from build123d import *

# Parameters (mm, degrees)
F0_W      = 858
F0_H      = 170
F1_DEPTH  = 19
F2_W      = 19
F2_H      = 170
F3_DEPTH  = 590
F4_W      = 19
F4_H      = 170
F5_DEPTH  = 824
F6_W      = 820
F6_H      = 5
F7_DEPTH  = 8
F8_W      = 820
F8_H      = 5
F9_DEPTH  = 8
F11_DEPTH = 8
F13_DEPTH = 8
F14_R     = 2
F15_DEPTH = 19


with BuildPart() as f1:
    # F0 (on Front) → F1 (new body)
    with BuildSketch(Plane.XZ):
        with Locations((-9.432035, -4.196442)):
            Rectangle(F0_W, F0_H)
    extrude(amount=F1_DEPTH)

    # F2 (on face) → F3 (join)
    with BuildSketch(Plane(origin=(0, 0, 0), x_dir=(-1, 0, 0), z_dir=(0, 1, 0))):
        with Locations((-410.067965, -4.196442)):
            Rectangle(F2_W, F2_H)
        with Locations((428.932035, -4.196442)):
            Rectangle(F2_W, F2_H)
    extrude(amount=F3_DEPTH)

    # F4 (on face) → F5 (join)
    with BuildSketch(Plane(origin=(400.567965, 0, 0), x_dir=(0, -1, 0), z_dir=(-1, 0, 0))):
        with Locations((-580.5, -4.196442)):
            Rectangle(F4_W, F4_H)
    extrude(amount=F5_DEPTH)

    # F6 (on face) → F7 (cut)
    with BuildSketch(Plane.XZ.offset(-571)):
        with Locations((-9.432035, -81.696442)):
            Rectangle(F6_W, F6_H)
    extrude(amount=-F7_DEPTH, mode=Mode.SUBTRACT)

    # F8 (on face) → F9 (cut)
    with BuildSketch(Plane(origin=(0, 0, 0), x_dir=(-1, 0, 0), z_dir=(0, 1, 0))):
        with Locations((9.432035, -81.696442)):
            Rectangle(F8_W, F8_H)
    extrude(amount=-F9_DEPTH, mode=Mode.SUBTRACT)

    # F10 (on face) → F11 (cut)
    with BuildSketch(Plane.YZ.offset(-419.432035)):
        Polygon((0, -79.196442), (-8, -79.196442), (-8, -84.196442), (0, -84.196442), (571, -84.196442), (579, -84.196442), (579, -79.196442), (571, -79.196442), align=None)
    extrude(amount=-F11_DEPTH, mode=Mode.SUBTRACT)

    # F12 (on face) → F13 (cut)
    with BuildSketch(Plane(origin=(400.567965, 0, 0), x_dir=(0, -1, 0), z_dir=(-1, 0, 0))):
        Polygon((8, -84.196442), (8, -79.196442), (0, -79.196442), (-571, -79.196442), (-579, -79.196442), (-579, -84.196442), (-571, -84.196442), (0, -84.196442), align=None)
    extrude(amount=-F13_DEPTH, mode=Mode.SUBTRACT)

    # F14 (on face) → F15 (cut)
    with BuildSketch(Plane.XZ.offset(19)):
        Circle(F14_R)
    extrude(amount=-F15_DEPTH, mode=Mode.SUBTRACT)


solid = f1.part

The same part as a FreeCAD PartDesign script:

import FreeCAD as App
import Part
import Sketcher

V = App.Vector


def add_polygon(sketch, points):
    """Adds a closed chain of lines whose ends are joined by coincident constraints."""
    first, n = sketch.GeometryCount, len(points)
    for a, b in zip(points, points[1:] + points[:1]):
        sketch.addGeometry(Part.LineSegment(App.Vector(*a, 0), App.Vector(*b, 0)), False)
    for i in range(n):
        sketch.addConstraint(Sketcher.Constraint("Coincident", first + i, 2, first + (i + 1) % n, 1))

doc = App.newDocument("Part")
body = doc.addObject("PartDesign::Body", "Body")

# Sketch on XZ plane
sketch1 = body.newObject("Sketcher::SketchObject", "Sketch")
sketch1.AttachmentSupport = (doc.getObject("XZ_Plane"), [""])
sketch1.MapMode = "FlatFace"
add_polygon(sketch1, [(-438, 81), (-438, -89), (420, -89), (420, 81)])  # lines 0-3
sketch1.addConstraint([
    Sketcher.Constraint("Vertical", 0),
    Sketcher.Constraint("Horizontal", 1),
    Sketcher.Constraint("Vertical", 2),
    Sketcher.Constraint("Horizontal", 3),
    Sketcher.Constraint("DistanceX", 1, 1, 1, 2, 858.0),
    Sketcher.Constraint("DistanceY", 0, 2, 0, 1, 170.0),
    Sketcher.Constraint("DistanceX", 0, 2, -1, 1, 438.432035),
    Sketcher.Constraint("DistanceY", 0, 2, -1, 1, 89.196442),
])
pad1 = body.newObject("PartDesign::Pad", "Pad")
pad1.Profile = sketch1
pad1.Length = 19

# Sketch on XZ plane
sketch2 = body.newObject("Sketcher::SketchObject", "Sketch001")
sketch2.AttachmentSupport = (doc.getObject("XZ_Plane"), [""])
sketch2.MapMode = "FlatFace"
add_polygon(sketch2, [(420, 81), (420, -89), (401, -89), (401, 81)])  # lines 0-3
add_polygon(sketch2, [(-419, 81), (-419, -89), (-438, -89), (-438, 81)])  # lines 4-7
sketch2.addConstraint([
    Sketcher.Constraint("Vertical", 0),
    Sketcher.Constraint("Horizontal", 1),
    Sketcher.Constraint("Vertical", 2),
    Sketcher.Constraint("Horizontal", 3),
    Sketcher.Constraint("Vertical", 4),
    Sketcher.Constraint("Horizontal", 5),
    Sketcher.Constraint("Vertical", 6),
    Sketcher.Constraint("Horizontal", 7),
    Sketcher.Constraint("Horizontal", 1, 2, 4, 2),
    Sketcher.Constraint("Horizontal", 3, 2, 6, 2),
    Sketcher.Constraint("Equal", 3, 5),
    Sketcher.Constraint("DistanceX", 1, 2, 1, 1, 19.0),
    Sketcher.Constraint("DistanceY", 0, 2, 0, 1, 170.0),
    Sketcher.Constraint("DistanceX", 4, 2, 1, 2, 820.0),
    Sketcher.Constraint("DistanceX", -1, 1, 0, 2, 419.567965),
    Sketcher.Constraint("DistanceY", 0, 2, -1, 1, 89.196442),
])
pad2 = body.newObject("PartDesign::Pad", "Pad001")
pad2.Profile = sketch2
pad2.Length = 590
pad2.Reversed = True

# Sketch on YZ plane
sketch3 = body.newObject("Sketcher::SketchObject", "Sketch002")
sketch3.AttachmentSupport = (doc.getObject("YZ_Plane"), [""])
sketch3.MapMode = "FlatFace"
sketch3.AttachmentOffset = App.Placement(V(0, 0, 400.567965), App.Rotation())
add_polygon(sketch3, [(590, 81), (590, -89), (571, -89), (571, 81)])  # lines 0-3
sketch3.addConstraint([
    Sketcher.Constraint("Vertical", 0),
    Sketcher.Constraint("Horizontal", 1),
    Sketcher.Constraint("Vertical", 2),
    Sketcher.Constraint("Horizontal", 3),
    Sketcher.Constraint("DistanceX", 1, 2, 1, 1, 19.0),
    Sketcher.Constraint("DistanceY", 0, 2, 0, 1, 170.0),
    Sketcher.Constraint("DistanceX", -1, 1, 0, 2, 590.0),
    Sketcher.Constraint("DistanceY", 0, 2, -1, 1, 89.196442),
])
pad3 = body.newObject("PartDesign::Pad", "Pad002")
pad3.Profile = sketch3
pad3.Length = 824
pad3.Reversed = True

# Sketch on XZ plane
sketch4 = body.newObject("Sketcher::SketchObject", "Sketch003")
sketch4.AttachmentSupport = (doc.getObject("XZ_Plane"), [""])
sketch4.MapMode = "FlatFace"
sketch4.AttachmentOffset = App.Placement(V(0, 0, -571), App.Rotation())
add_polygon(sketch4, [(-419, -79), (-419, -84), (401, -84), (401, -79)])  # lines 0-3
sketch4.addConstraint([
    Sketcher.Constraint("Vertical", 0),
    Sketcher.Constraint("Horizontal", 1),
    Sketcher.Constraint("Vertical", 2),
    Sketcher.Constraint("Horizontal", 3),
    Sketcher.Constraint("DistanceX", 1, 1, 1, 2, 820.0),
    Sketcher.Constraint("DistanceY", 0, 2, 0, 1, 5.0),
    Sketcher.Constraint("DistanceX", 0, 2, -1, 1, 419.432035),
    Sketcher.Constraint("DistanceY", 0, 2, -1, 1, 84.196442),
])
pocket1 = body.newObject("PartDesign::Pocket", "Pocket")
pocket1.Profile = sketch4
pocket1.Length = 8

# Sketch on XZ plane
sketch5 = body.newObject("Sketcher::SketchObject", "Sketch004")
sketch5.AttachmentSupport = (doc.getObject("XZ_Plane"), [""])
sketch5.MapMode = "FlatFace"
add_polygon(sketch5, [(401, -79), (401, -84), (-419, -84), (-419, -79)])  # lines 0-3
sketch5.addConstraint([
    Sketcher.Constraint("Vertical", 0),
    Sketcher.Constraint("Horizontal", 1),
    Sketcher.Constraint("Vertical", 2),
    Sketcher.Constraint("Horizontal", 3),
    Sketcher.Constraint("DistanceX", 1, 2, 1, 1, 820.0),
    Sketcher.Constraint("DistanceY", 0, 2, 0, 1, 5.0),
    Sketcher.Constraint("DistanceX", -1, 1, 0, 2, 400.567965),
    Sketcher.Constraint("DistanceY", 0, 2, -1, 1, 84.196442),
])
pocket2 = body.newObject("PartDesign::Pocket", "Pocket001")
pocket2.Profile = sketch5
pocket2.Length = 8
pocket2.Reversed = True

# Sketch on YZ plane
sketch6 = body.newObject("Sketcher::SketchObject", "Sketch005")
sketch6.AttachmentSupport = (doc.getObject("YZ_Plane"), [""])
sketch6.MapMode = "FlatFace"
sketch6.AttachmentOffset = App.Placement(V(0, 0, -419.432035), App.Rotation())
add_polygon(sketch6, [(-8, -79), (-8, -84), (579, -84), (579, -79)])  # lines 0-3
sketch6.addConstraint([
    Sketcher.Constraint("Vertical", 0),
    Sketcher.Constraint("Horizontal", 1),
    Sketcher.Constraint("Vertical", 2),
    Sketcher.Constraint("Horizontal", 3),
    Sketcher.Constraint("DistanceX", 1, 1, 1, 2, 587.0),
    Sketcher.Constraint("DistanceY", 0, 2, 0, 1, 5.0),
    Sketcher.Constraint("DistanceX", 0, 2, -1, 1, 8.0),
    Sketcher.Constraint("DistanceY", 0, 2, -1, 1, 84.196442),
])
pocket3 = body.newObject("PartDesign::Pocket", "Pocket002")
pocket3.Profile = sketch6
pocket3.Length = 8

# Sketch on YZ plane
sketch7 = body.newObject("Sketcher::SketchObject", "Sketch006")
sketch7.AttachmentSupport = (doc.getObject("YZ_Plane"), [""])
sketch7.MapMode = "FlatFace"
sketch7.AttachmentOffset = App.Placement(V(0, 0, 400.567965), App.Rotation())
add_polygon(sketch7, [(-8, -84), (-8, -79), (579, -79), (579, -84)])  # lines 0-3
sketch7.addConstraint([
    Sketcher.Constraint("Vertical", 0),
    Sketcher.Constraint("Horizontal", 1),
    Sketcher.Constraint("Vertical", 2),
    Sketcher.Constraint("Horizontal", 3),
    Sketcher.Constraint("DistanceX", 1, 1, 1, 2, 587.0),
    Sketcher.Constraint("DistanceY", 0, 1, 0, 2, 5.0),
    Sketcher.Constraint("DistanceX", 0, 2, -1, 1, 8.0),
    Sketcher.Constraint("DistanceY", 0, 2, -1, 1, 79.196442),
])
pocket4 = body.newObject("PartDesign::Pocket", "Pocket003")
pocket4.Profile = sketch7
pocket4.Length = 8
pocket4.Reversed = True

# Sketch on XZ plane
sketch8 = body.newObject("Sketcher::SketchObject", "Sketch007")
sketch8.AttachmentSupport = (doc.getObject("XZ_Plane"), [""])
sketch8.MapMode = "FlatFace"
sketch8.AttachmentOffset = App.Placement(V(0, 0, 19), App.Rotation())
sketch8.addGeometry(Part.Circle(V(0, 0, 0), V(0, 0, 1), 2), False)
sketch8.addConstraint([
    Sketcher.Constraint("Coincident", 0, 3, -1, 1),
    Sketcher.Constraint("Diameter", 0, 4.0),
])
pocket5 = body.newObject("PartDesign::Pocket", "Pocket004")
pocket5.Profile = sketch8
pocket5.Length = 19

doc.recompute()
